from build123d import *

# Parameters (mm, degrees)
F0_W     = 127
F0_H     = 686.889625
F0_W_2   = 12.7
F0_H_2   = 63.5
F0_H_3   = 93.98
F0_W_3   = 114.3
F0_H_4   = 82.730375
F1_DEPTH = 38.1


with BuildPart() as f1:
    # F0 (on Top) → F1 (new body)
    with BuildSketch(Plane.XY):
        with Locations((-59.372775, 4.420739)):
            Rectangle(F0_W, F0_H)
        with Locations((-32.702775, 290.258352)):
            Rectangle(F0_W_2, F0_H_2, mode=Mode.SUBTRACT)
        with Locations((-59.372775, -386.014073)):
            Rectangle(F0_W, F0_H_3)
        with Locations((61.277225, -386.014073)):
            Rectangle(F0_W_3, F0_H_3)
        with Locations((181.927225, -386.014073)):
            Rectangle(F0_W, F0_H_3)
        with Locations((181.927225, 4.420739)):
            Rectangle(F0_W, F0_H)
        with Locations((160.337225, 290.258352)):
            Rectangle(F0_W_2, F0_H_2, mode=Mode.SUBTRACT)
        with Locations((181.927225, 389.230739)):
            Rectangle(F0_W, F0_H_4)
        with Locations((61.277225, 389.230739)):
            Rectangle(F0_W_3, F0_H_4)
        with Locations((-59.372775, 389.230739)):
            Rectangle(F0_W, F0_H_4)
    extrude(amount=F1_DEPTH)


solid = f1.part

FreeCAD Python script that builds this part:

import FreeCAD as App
import Part
import Sketcher

V = App.Vector
Q = App.Units.Quantity

doc = App.newDocument("Part")
body = doc.addObject("PartDesign::Body", "Body")

# Sketch on XY plane
sketch1 = body.newObject("Sketcher::SketchObject", "Sketch")
sketch1.AttachmentSupport = (doc.getObject("XY_Plane"), [""])
sketch1.MapMode = "FlatFace"
sketch1.addGeometry(Part.LineSegment(V(245, 431, 0), V(-123, 431, 0)), False)
sketch1.addGeometry(Part.LineSegment(V(-123, 431, 0), V(-123, -433, 0)), False)
sketch1.addGeometry(Part.LineSegment(V(-123, -433, 0), V(245, -433, 0)), False)
sketch1.addGeometry(Part.LineSegment(V(245, -433, 0), V(245, 431, 0)), False)
sketch1.addGeometry(Part.LineSegment(V(4, -339, 0), V(4, 348, 0)), False)
sketch1.addGeometry(Part.LineSegment(V(4, 348, 0), V(118, 348, 0)), False)
sketch1.addGeometry(Part.LineSegment(V(118, 348, 0), V(118, -339, 0)), False)
sketch1.addGeometry(Part.LineSegment(V(118, -339, 0), V(4, -339, 0)), False)
sketch1.addGeometry(Part.LineSegment(V(-39, 322, 0), V(-26, 322, 0)), False)
sketch1.addGeometry(Part.LineSegment(V(-26, 322, 0), V(-26, 259, 0)), False)
sketch1.addGeometry(Part.LineSegment(V(-26, 259, 0), V(-39, 259, 0)), False)
sketch1.addGeometry(Part.LineSegment(V(-39, 259, 0), V(-39, 322, 0)), False)
sketch1.addGeometry(Part.LineSegment(V(167, 259, 0), V(154, 259, 0)), False)
sketch1.addGeometry(Part.LineSegment(V(154, 259, 0), V(154, 322, 0)), False)
sketch1.addGeometry(Part.LineSegment(V(154, 322, 0), V(167, 322, 0)), False)
sketch1.addGeometry(Part.LineSegment(V(167, 322, 0), V(167, 259, 0)), False)
sketch1.addConstraint(Sketcher.Constraint("Coincident", 0, 2, 1, 1))
sketch1.addConstraint(Sketcher.Constraint("Coincident", 1, 2, 2, 1))
sketch1.addConstraint(Sketcher.Constraint("Coincident", 2, 2, 3, 1))
sketch1.addConstraint(Sketcher.Constraint("Coincident", 3, 2, 0, 1))
sketch1.addConstraint(Sketcher.Constraint("Coincident", 4, 2, 5, 1))
sketch1.addConstraint(Sketcher.Constraint("Coincident", 5, 2, 6, 1))
sketch1.addConstraint(Sketcher.Constraint("Coincident", 6, 2, 7, 1))
sketch1.addConstraint(Sketcher.Constraint("Coincident", 7, 2, 4, 1))
sketch1.addConstraint(Sketcher.Constraint("Coincident", 8, 2, 9, 1))
sketch1.addConstraint(Sketcher.Constraint("Coincident", 9, 2, 10, 1))
sketch1.addConstraint(Sketcher.Constraint("Coincident", 10, 2, 11, 1))
sketch1.addConstraint(Sketcher.Constraint("Coincident", 11, 2, 8, 1))
sketch1.addConstraint(Sketcher.Constraint("Coincident", 12, 2, 13, 1))
sketch1.addConstraint(Sketcher.Constraint("Coincident", 13, 2, 14, 1))
sketch1.addConstraint(Sketcher.Constraint("Coincident", 14, 2, 15, 1))
sketch1.addConstraint(Sketcher.Constraint("Coincident", 15, 2, 12, 1))
sketch1.addConstraint(Sketcher.Constraint("Horizontal", 0))
sketch1.addConstraint(Sketcher.Constraint("Vertical", 1))
sketch1.addConstraint(Sketcher.Constraint("Horizontal", 2))
sketch1.addConstraint(Sketcher.Constraint("Vertical", 3))
sketch1.addConstraint(Sketcher.Constraint("Vertical", 4))
sketch1.addConstraint(Sketcher.Constraint("Horizontal", 5))
sketch1.addConstraint(Sketcher.Constraint("Vertical", 6))
sketch1.addConstraint(Sketcher.Constraint("Horizontal", 7))
sketch1.addConstraint(Sketcher.Constraint("Horizontal", 8))
sketch1.addConstraint(Sketcher.Constraint("Vertical", 9))
sketch1.addConstraint(Sketcher.Constraint("Horizontal", 10))
sketch1.addConstraint(Sketcher.Constraint("Vertical", 11))
sketch1.addConstraint(Sketcher.Constraint("Horizontal", 12))
sketch1.addConstraint(Sketcher.Constraint("Vertical", 13))
sketch1.addConstraint(Sketcher.Constraint("Horizontal", 14))
sketch1.addConstraint(Sketcher.Constraint("Vertical", 15))
sketch1.addConstraint(Sketcher.Constraint("Horizontal", 10, 2, 12, 2))
sketch1.addConstraint(Sketcher.Constraint("Horizontal", 11, 2, 13, 2))
sketch1.addConstraint(Sketcher.Constraint("Equal", 10, 12))
sketch1.addConstraint(Sketcher.Constraint("DistanceY", 1, 2, 1, 1, Q("34 in")))
sketch1.addConstraint(Sketcher.Constraint("DistanceX", 0, 2, 0, 1, Q("14.5 in")))
sketch1.addConstraint(Sketcher.Constraint("DistanceX", 5, 1, 5, 2, Q("4.5 in")))
sketch1.addConstraint(Sketcher.Constraint("DistanceX", 8, 1, 8, 2, Q("0.5 in")))
sketch1.addConstraint(Sketcher.Constraint("DistanceY", 9, 2, 9, 1, Q("2.5 in")))
sketch1.addConstraint(Sketcher.Constraint("DistanceX", 0, 2, 4, 2, Q("5 in")))
sketch1.addConstraint(Sketcher.Constraint("DistanceY", 2, 2, 6, 2, Q("3.7 in")))
sketch1.addConstraint(Sketcher.Constraint("DistanceX", 8, 2, 4, 2, Q("1.2 in")))
sketch1.addConstraint(Sketcher.Constraint("DistanceX", 5, 2, 12, 2, Q("1.4 in")))
sketch1.addConstraint(Sketcher.Constraint("DistanceY", 8, 2, 4, 2, Q("1.018 in")))
sketch1.addConstraint(Sketcher.Constraint("DistanceY", 4, 1, 4, 2, 686.889624))
sketch1.addConstraint(Sketcher.Constraint("DistanceY", -1, 1, 4, 2, 347.865551))
sketch1.addConstraint(Sketcher.Constraint("DistanceX", 0, 2, -1, 1, 122.872775))
pad1 = body.newObject("PartDesign::Pad", "Pad")
pad1.Profile = sketch1
pad1.Length = Q("1.5 in")

doc.recompute()
